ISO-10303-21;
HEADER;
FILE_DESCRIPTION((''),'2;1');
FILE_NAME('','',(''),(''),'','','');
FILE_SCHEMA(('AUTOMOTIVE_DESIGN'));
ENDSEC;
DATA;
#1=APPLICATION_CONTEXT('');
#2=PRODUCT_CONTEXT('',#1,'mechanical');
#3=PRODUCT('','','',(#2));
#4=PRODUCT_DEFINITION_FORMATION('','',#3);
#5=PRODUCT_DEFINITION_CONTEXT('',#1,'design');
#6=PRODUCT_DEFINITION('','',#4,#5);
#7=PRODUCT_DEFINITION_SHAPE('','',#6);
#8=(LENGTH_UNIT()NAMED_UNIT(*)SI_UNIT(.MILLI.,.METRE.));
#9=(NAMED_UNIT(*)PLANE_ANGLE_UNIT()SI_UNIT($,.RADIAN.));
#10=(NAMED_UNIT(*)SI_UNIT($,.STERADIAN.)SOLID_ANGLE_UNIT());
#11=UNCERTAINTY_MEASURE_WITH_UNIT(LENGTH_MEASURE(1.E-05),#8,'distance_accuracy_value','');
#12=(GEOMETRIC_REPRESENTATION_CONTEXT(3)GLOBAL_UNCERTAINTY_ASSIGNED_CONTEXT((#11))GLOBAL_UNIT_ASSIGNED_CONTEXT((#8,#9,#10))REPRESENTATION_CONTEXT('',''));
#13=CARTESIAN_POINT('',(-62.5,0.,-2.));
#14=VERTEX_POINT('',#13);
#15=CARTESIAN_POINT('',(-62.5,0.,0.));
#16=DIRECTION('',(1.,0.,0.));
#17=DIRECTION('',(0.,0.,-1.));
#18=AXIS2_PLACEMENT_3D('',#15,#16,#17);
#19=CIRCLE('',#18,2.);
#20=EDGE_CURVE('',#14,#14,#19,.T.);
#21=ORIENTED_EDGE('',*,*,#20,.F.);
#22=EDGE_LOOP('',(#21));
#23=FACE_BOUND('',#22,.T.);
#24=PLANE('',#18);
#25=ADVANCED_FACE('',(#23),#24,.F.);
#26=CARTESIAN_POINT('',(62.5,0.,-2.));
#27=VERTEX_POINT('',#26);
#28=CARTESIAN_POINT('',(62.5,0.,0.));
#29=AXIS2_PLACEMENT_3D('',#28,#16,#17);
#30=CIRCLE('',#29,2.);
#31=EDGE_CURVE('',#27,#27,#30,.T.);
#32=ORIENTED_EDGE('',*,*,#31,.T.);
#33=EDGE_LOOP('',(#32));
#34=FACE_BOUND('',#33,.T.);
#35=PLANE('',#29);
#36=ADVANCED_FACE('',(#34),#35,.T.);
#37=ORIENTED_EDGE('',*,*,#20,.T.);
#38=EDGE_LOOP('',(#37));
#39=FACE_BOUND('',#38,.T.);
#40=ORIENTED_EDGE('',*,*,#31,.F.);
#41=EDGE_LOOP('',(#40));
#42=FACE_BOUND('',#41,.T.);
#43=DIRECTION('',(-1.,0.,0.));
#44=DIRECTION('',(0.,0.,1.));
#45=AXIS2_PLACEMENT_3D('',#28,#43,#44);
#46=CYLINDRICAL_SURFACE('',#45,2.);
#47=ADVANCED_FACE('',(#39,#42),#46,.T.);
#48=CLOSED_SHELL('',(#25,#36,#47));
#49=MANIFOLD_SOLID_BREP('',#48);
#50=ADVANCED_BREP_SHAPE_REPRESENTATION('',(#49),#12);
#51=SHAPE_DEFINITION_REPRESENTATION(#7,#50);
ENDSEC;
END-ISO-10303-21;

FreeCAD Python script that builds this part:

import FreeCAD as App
import Part
import Sketcher
from FreeCAD import Vector

doc = App.newDocument("Part")
body = doc.addObject("PartDesign::Body", "Body")

sketch1 = body.newObject("Sketcher::SketchObject", "Sketch")
sketch1.AttachmentSupport = (doc.getObject("YZ_Plane"), [""])
sketch1.MapMode = "FlatFace"
sketch1.addGeometry(Part.Circle(Vector(0, 0, 0), Vector(0, 0, 1), 2), False)
sketch1.addConstraint([
    Sketcher.Constraint("Coincident", 0, 3, -1, 1),
    Sketcher.Constraint("Diameter", 0, 4.0),
])
pad1 = body.newObject("PartDesign::Pad", "Pad")
pad1.Profile = sketch1
pad1.Length = 125
pad1.Midplane = True

doc.recompute()
